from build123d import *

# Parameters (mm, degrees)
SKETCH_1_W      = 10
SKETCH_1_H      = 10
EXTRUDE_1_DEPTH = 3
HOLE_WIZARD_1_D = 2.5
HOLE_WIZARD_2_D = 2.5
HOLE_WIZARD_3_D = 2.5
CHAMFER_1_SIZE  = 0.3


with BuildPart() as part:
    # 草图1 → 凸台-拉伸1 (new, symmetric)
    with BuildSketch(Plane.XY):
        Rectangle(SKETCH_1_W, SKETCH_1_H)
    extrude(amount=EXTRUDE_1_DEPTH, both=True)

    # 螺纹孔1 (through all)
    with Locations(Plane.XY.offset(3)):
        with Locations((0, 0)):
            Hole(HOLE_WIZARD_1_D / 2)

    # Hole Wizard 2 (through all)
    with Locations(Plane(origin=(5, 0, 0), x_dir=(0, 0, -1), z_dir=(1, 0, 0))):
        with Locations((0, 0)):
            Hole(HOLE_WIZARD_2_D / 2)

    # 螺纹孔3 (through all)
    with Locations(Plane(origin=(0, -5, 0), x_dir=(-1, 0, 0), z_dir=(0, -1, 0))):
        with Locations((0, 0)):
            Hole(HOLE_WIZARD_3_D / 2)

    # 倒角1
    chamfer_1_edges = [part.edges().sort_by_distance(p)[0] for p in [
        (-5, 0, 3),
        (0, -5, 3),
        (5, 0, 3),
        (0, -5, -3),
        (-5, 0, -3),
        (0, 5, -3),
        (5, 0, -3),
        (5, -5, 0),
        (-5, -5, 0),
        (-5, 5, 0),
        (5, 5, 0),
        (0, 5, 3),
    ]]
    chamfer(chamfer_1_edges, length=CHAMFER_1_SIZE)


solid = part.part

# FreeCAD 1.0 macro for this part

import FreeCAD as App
import Part
import Sketcher
from FreeCAD import Vector


def edges_at(feature, points):
    """Names of the edges that pass closest to the given points."""
    edges = feature.Shape.Edges
    near = lambda p: min(range(len(edges)), key=lambda i: edges[i].distToShape(Part.Vertex(*p))[0])
    return sorted({f"Edge{near(p) + 1}" for p in points})

doc = App.newDocument("Part")
body = doc.addObject("PartDesign::Body", "Body")

sketch1 = doc.addObject("Sketcher::SketchObject", "Sketch")
body.addObject(sketch1)
sketch1.AttachmentSupport = (doc.XY_Plane, [""])
sketch1.MapMode = "FlatFace"
sketch1.addGeometry([
    Part.LineSegment(Vector(-5, 5, 0), Vector(-5, -5, 0)),
    Part.LineSegment(Vector(-5, -5, 0), Vector(5, -5, 0)),
    Part.LineSegment(Vector(5, -5, 0), Vector(5, 5, 0)),
    Part.LineSegment(Vector(5, 5, 0), Vector(-5, 5, 0)),
], False)
sketch1.addConstraint([
    Sketcher.Constraint("Coincident", 0, 2, 1, 1),
    Sketcher.Constraint("Coincident", 1, 2, 2, 1),
    Sketcher.Constraint("Coincident", 2, 2, 3, 1),
    Sketcher.Constraint("Coincident", 3, 2, 0, 1),
    Sketcher.Constraint("Vertical", 0),
    Sketcher.Constraint("Horizontal", 1),
    Sketcher.Constraint("Vertical", 2),
    Sketcher.Constraint("Horizontal", 3),
    Sketcher.Constraint("Symmetric", 0, 2, 2, 2, -1, 1),
    Sketcher.Constraint("Equal", 3, 0),
    Sketcher.Constraint("DistanceX", 1, 1, 1, 2, 10.0),
])
pad1 = doc.addObject("PartDesign::Pad", "Pad")
body.addObject(pad1)
pad1.Profile = sketch1
pad1.Length = 6
pad1.Midplane = True

sketch2 = doc.addObject("Sketcher::SketchObject", "Sketch001")
body.addObject(sketch2)
sketch2.AttachmentSupport = (doc.XY_Plane, [""])
sketch2.MapMode = "FlatFace"
sketch2.AttachmentOffset = App.Placement(Vector(0, 0, 3), App.Rotation())
sketch2.addGeometry(Part.Circle(Vector(0, 0, 0), Vector(0, 0, 1), 1.25), False)
sketch2.addConstraint([
    Sketcher.Constraint("Coincident", 0, 3, -1, 1),
    Sketcher.Constraint("Diameter", 0, 2.5),
])
doc.recompute()
hole = doc.addObject("PartDesign::Hole", "Hole")
body.addObject(hole)
hole.Profile = sketch2
hole.ThreadType = "None"
hole.Diameter = 2.5
hole.DepthType = "ThroughAll"

sketch3 = doc.addObject("Sketcher::SketchObject", "Sketch002")
body.addObject(sketch3)
sketch3.AttachmentSupport = (doc.YZ_Plane, [""])
sketch3.MapMode = "FlatFace"
sketch3.AttachmentOffset = App.Placement(Vector(0, 0, 5), App.Rotation())
sketch3.addGeometry(Part.Circle(Vector(0, 0, 0), Vector(0, 0, 1), 1.25), False)
sketch3.addConstraint([
    Sketcher.Constraint("Coincident", 0, 3, -1, 1),
    Sketcher.Constraint("Diameter", 0, 2.5),
])
doc.recompute()
hole2 = doc.addObject("PartDesign::Hole", "Hole001")
body.addObject(hole2)
hole2.Profile = sketch3
hole2.ThreadType = "None"
hole2.Diameter = 2.5
hole2.DepthType = "ThroughAll"

sketch4 = doc.addObject("Sketcher::SketchObject", "Sketch003")
body.addObject(sketch4)
sketch4.AttachmentSupport = (doc.XZ_Plane, [""])
sketch4.MapMode = "FlatFace"
sketch4.AttachmentOffset = App.Placement(Vector(0, 0, 5), App.Rotation())
sketch4.addGeometry(Part.Circle(Vector(0, 0, 0), Vector(0, 0, 1), 1.25), False)
sketch4.addConstraint([
    Sketcher.Constraint("Coincident", 0, 3, -1, 1),
    Sketcher.Constraint("Diameter", 0, 2.5),
])
doc.recompute()
hole3 = doc.addObject("PartDesign::Hole", "Hole002")
body.addObject(hole3)
hole3.Profile = sketch4
hole3.ThreadType = "None"
hole3.Diameter = 2.5
hole3.DepthType = "ThroughAll"
doc.recompute()

chamfer = doc.addObject("PartDesign::Chamfer", "Chamfer")
body.addObject(chamfer)
chamfer.Base = (hole3, edges_at(hole3, [
    (-5, 0, 3),
    (0, -5, 3),
    (5, 0, 3),
    (0, -5, -3),
    (-5, 0, -3),
    (0, 5, -3),
    (5, 0, -3),
    (5, -5, 0),
    (-5, -5, 0),
    (-5, 5, 0),
    (5, 5, 0),
    (0, 5, 3),
]))
chamfer.Size = 0.3

doc.recompute()
